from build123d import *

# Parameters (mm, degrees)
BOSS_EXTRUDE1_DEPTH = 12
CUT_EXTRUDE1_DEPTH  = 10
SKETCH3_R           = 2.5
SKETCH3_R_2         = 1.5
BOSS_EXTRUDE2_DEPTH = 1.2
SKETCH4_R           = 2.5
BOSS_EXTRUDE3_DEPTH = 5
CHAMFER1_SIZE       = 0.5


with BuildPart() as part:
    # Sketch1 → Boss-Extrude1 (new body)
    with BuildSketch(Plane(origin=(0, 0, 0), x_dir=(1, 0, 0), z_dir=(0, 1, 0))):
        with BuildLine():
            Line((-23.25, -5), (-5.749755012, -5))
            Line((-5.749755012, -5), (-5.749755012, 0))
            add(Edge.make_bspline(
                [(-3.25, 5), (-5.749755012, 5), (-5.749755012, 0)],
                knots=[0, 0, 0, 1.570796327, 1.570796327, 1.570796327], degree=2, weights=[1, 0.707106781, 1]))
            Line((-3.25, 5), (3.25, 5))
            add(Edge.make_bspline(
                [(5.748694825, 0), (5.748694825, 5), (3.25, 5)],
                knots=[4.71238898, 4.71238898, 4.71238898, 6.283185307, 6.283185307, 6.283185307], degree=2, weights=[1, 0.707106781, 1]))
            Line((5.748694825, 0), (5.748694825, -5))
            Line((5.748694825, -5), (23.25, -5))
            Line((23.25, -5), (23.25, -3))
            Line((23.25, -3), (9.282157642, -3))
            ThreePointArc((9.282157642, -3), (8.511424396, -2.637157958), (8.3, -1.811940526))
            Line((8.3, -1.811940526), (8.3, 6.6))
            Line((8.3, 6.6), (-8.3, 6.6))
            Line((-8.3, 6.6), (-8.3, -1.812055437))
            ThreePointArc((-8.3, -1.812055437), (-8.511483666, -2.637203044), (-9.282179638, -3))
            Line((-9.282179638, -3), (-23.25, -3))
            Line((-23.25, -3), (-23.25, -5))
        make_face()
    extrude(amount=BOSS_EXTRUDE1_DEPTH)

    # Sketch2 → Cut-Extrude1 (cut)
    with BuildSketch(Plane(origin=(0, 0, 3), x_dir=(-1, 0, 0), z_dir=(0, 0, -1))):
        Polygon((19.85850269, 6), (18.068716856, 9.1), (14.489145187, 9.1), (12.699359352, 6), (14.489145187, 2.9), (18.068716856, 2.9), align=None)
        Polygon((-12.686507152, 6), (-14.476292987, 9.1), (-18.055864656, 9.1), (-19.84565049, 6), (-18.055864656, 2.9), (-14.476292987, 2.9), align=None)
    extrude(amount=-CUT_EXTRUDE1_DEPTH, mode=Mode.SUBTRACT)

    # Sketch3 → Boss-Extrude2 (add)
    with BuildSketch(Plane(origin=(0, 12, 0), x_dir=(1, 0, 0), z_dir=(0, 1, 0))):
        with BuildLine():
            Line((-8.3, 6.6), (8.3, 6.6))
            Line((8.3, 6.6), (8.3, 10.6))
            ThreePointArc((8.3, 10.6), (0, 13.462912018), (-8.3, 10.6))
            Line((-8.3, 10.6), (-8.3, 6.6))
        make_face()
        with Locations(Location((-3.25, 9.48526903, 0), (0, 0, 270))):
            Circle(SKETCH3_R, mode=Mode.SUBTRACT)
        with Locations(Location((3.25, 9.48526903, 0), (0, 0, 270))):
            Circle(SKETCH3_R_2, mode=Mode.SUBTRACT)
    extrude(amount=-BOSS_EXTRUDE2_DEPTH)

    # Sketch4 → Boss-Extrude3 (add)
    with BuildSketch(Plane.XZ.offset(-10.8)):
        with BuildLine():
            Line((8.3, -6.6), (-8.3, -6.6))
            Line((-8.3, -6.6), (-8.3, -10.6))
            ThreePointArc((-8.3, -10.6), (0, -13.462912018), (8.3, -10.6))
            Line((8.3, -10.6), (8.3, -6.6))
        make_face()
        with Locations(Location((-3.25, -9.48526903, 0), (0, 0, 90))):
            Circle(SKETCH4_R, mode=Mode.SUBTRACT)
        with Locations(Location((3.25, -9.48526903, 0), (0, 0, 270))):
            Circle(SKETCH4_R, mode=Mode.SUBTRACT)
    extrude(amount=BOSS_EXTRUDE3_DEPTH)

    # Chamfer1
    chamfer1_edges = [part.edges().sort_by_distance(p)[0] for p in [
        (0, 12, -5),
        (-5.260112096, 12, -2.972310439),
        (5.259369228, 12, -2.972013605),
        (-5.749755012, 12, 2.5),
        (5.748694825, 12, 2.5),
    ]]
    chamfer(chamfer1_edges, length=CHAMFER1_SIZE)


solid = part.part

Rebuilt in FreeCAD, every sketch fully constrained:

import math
import FreeCAD as App
import Part
import Sketcher
from FreeCAD import Vector
Q = App.Units.Quantity


def edges_at(feature, points):
    """Names of the edges that pass closest to the given points."""
    edges = feature.Shape.Edges
    near = lambda p: min(range(len(edges)), key=lambda i: edges[i].distToShape(Part.Vertex(*p))[0])
    return sorted({f"Edge{near(p) + 1}" for p in points})

doc = App.newDocument("Part")
body = doc.addObject("PartDesign::Body", "Body")

# Sketch on XZ plane
sketch1 = body.newObject("Sketcher::SketchObject", "Sketch")
sketch1.AttachmentSupport = (doc.getObject("XZ_Plane"), [""])
sketch1.MapMode = "FlatFace"
sketch1.addGeometry(Part.LineSegment(Vector(-23.25, 5, 0), Vector(-5.749755, 5, 0)), False)
sketch1.addGeometry(Part.LineSegment(Vector(-5.749755, 5, 0), Vector(-5.749755, 0, 0)), False)
sketch1.addGeometry(Part.BSplineCurve([Vector(-3.25, -5, 0), Vector(-5.749755, -5, 0), Vector(-5.749755, 0, 0)], [3, 3], [0, 1.570796327], False, 2, [1, 0.707106781, 1], False), False)
sketch1.addGeometry(Part.LineSegment(Vector(-3.25, -5, 0), Vector(3.25, -5, 0)), False)
sketch1.addGeometry(Part.BSplineCurve([Vector(5.748695, 0, 0), Vector(5.748695, -5, 0), Vector(3.25, -5, 0)], [3, 3], [4.71238898, 6.283185307], False, 2, [1, 0.707106781, 1], False), False)
sketch1.addGeometry(Part.LineSegment(Vector(5.748695, 0, 0), Vector(5.748695, 5, 0)), False)
sketch1.addGeometry(Part.LineSegment(Vector(5.748695, 5, 0), Vector(23.25, 5, 0)), False)
sketch1.addGeometry(Part.LineSegment(Vector(23.25, 5, 0), Vector(23.25, 3, 0)), False)
sketch1.addGeometry(Part.LineSegment(Vector(23.25, 3, 0), Vector(9.282158, 3, 0)), False)
sketch1.addGeometry(Part.ArcOfCircle(Part.Circle(Vector(9.282158, 2, 0), Vector(0, 0, 1), 1), math.radians(90), math.radians(190.839559)), False)
sketch1.addGeometry(Part.LineSegment(Vector(8.3, 1.811941, 0), Vector(8.3, -6.6, 0)), False)
sketch1.addGeometry(Part.LineSegment(Vector(8.3, -6.6, 0), Vector(-8.3, -6.6, 0)), False)
sketch1.addGeometry(Part.LineSegment(Vector(-8.3, -6.6, 0), Vector(-8.3, 1.812055, 0)), False)
sketch1.addGeometry(Part.ArcOfCircle(Part.Circle(Vector(-9.28218, 2, 0), Vector(0, 0, 1), 1), math.radians(-10.832855), math.radians(90)), False)
sketch1.addGeometry(Part.LineSegment(Vector(-9.28218, 3, 0), Vector(-23.25, 3, 0)), False)
sketch1.addGeometry(Part.LineSegment(Vector(-23.25, 3, 0), Vector(-23.25, 5, 0)), False)
sketch1.addConstraint(Sketcher.Constraint("Block", 2))
sketch1.addConstraint(Sketcher.Constraint("Block", 4))
sketch1.addConstraint(Sketcher.Constraint("Coincident", 0, 2, 1, 1))
sketch1.addConstraint(Sketcher.Constraint("Coincident", 1, 2, 2, 2))
sketch1.addConstraint(Sketcher.Constraint("Coincident", 2, 1, 3, 1))
sketch1.addConstraint(Sketcher.Constraint("Coincident", 3, 2, 4, 2))
sketch1.addConstraint(Sketcher.Constraint("Coincident", 4, 1, 5, 1))
sketch1.addConstraint(Sketcher.Constraint("Coincident", 5, 2, 6, 1))
sketch1.addConstraint(Sketcher.Constraint("Coincident", 6, 2, 7, 1))
sketch1.addConstraint(Sketcher.Constraint("Coincident", 7, 2, 8, 1))
sketch1.addConstraint(Sketcher.Constraint("Tangent", 8, 2, 9, 1))
sketch1.addConstraint(Sketcher.Constraint("Coincident", 9, 2, 10, 1))
sketch1.addConstraint(Sketcher.Constraint("Coincident", 10, 2, 11, 1))
sketch1.addConstraint(Sketcher.Constraint("Coincident", 11, 2, 12, 1))
sketch1.addConstraint(Sketcher.Constraint("Coincident", 12, 2, 13, 1))
sketch1.addConstraint(Sketcher.Constraint("Tangent", 13, 2, 14, 1))
sketch1.addConstraint(Sketcher.Constraint("Coincident", 14, 2, 15, 1))
sketch1.addConstraint(Sketcher.Constraint("Coincident", 15, 2, 0, 1))
sketch1.addConstraint(Sketcher.Constraint("Horizontal", 0))
sketch1.addConstraint(Sketcher.Constraint("Vertical", 1))
sketch1.addConstraint(Sketcher.Constraint("Vertical", 5))
sketch1.addConstraint(Sketcher.Constraint("Horizontal", 6))
sketch1.addConstraint(Sketcher.Constraint("Vertical", 7))
sketch1.addConstraint(Sketcher.Constraint("Horizontal", 8))
sketch1.addConstraint(Sketcher.Constraint("Vertical", 10))
sketch1.addConstraint(Sketcher.Constraint("Horizontal", 11))
sketch1.addConstraint(Sketcher.Constraint("Vertical", 12))
sketch1.addConstraint(Sketcher.Constraint("Horizontal", 14))
sketch1.addConstraint(Sketcher.Constraint("Vertical", 15))
sketch1.addConstraint(Sketcher.Constraint("Equal", 9, 13))
sketch1.addConstraint(Sketcher.Constraint("Symmetric", 7, 2, 14, 2, -2))
sketch1.addConstraint(Sketcher.Constraint("Horizontal", 0, 2, 5, 2))
sketch1.addConstraint(Sketcher.Constraint("Radius", 9, 1.0))
sketch1.addConstraint(Sketcher.Constraint("DistanceY", 1, 2, 1, 1, 5.0))
sketch1.addConstraint(Sketcher.Constraint("DistanceY", 7, 2, 7, 1, 2.0))
sketch1.addConstraint(Sketcher.Constraint("DistanceX", 11, 2, 11, 1, 16.6))
sketch1.addConstraint(Sketcher.Constraint("DistanceX", 3, 2, 6, 2, 20.0))
sketch1.addConstraint(Sketcher.Constraint("DistanceX", -1, 1, 9, 2, 8.3))
sketch1.addConstraint(Sketcher.Constraint("DistanceY", 10, 2, -1, 1, 6.6))
sketch1.addConstraint(Sketcher.Constraint("DistanceX", 14, 2, 14, 1, 13.96782))
sketch1.addConstraint(Sketcher.Constraint("DistanceY", 10, 2, 10, 1, 8.411941))
pad1 = body.newObject("PartDesign::Pad", "Pad")
pad1.Profile = sketch1
pad1.Length = 12
pad1.Reversed = True

# Sketch on XY plane
sketch2 = body.newObject("Sketcher::SketchObject", "Sketch001")
sketch2.AttachmentSupport = (doc.getObject("XY_Plane"), [""])
sketch2.MapMode = "FlatFace"
sketch2.AttachmentOffset = App.Placement(Vector(0, 0, 3), App.Rotation())
sketch2.addGeometry(Part.LineSegment(Vector(-19.9, 6, 0), Vector(-18.1, 9.1, 0)), False)
sketch2.addGeometry(Part.LineSegment(Vector(-18.1, 9.1, 0), Vector(-14.5, 9.1, 0)), False)
sketch2.addGeometry(Part.LineSegment(Vector(-14.5, 9.1, 0), Vector(-12.7, 6, 0)), False)
sketch2.addGeometry(Part.LineSegment(Vector(-12.7, 6, 0), Vector(-14.5, 2.9, 0)), False)
sketch2.addGeometry(Part.LineSegment(Vector(-14.5, 2.9, 0), Vector(-18.1, 2.9, 0)), False)
sketch2.addGeometry(Part.LineSegment(Vector(-18.1, 2.9, 0), Vector(-19.9, 6, 0)), False)
sketch2.addGeometry(Part.LineSegment(Vector(12.7, 6, 0), Vector(14.5, 9.1, 0)), False)
sketch2.addGeometry(Part.LineSegment(Vector(14.5, 9.1, 0), Vector(18.1, 9.1, 0)), False)
sketch2.addGeometry(Part.LineSegment(Vector(18.1, 9.1, 0), Vector(19.8, 6, 0)), False)
sketch2.addGeometry(Part.LineSegment(Vector(19.8, 6, 0), Vector(18.1, 2.9, 0)), False)
sketch2.addGeometry(Part.LineSegment(Vector(18.1, 2.9, 0), Vector(14.5, 2.9, 0)), False)
sketch2.addGeometry(Part.LineSegment(Vector(14.5, 2.9, 0), Vector(12.7, 6, 0)), False)
sketch2.addConstraint(Sketcher.Constraint("Coincident", 0, 2, 1, 1))
sketch2.addConstraint(Sketcher.Constraint("Coincident", 1, 2, 2, 1))
sketch2.addConstraint(Sketcher.Constraint("Coincident", 2, 2, 3, 1))
sketch2.addConstraint(Sketcher.Constraint("Coincident", 3, 2, 4, 1))
sketch2.addConstraint(Sketcher.Constraint("Coincident", 4, 2, 5, 1))
sketch2.addConstraint(Sketcher.Constraint("Coincident", 5, 2, 0, 1))
sketch2.addConstraint(Sketcher.Constraint("Coincident", 6, 2, 7, 1))
sketch2.addConstraint(Sketcher.Constraint("Coincident", 7, 2, 8, 1))
sketch2.addConstraint(Sketcher.Constraint("Coincident", 8, 2, 9, 1))
sketch2.addConstraint(Sketcher.Constraint("Coincident", 9, 2, 10, 1))
sketch2.addConstraint(Sketcher.Constraint("Coincident", 10, 2, 11, 1))
sketch2.addConstraint(Sketcher.Constraint("Coincident", 11, 2, 6, 1))
sketch2.addConstraint(Sketcher.Constraint("Horizontal", 1))
sketch2.addConstraint(Sketcher.Constraint("Horizontal", 4))
sketch2.addConstraint(Sketcher.Constraint("Horizontal", 7))
sketch2.addConstraint(Sketcher.Constraint("Horizontal", 10))
sketch2.addConstraint(Sketcher.Constraint("Parallel", 0, 3))
sketch2.addConstraint(Sketcher.Constraint("Parallel", 2, 5))
sketch2.addConstraint(Sketcher.Constraint("Parallel", 3, 6))
sketch2.addConstraint(Sketcher.Constraint("Parallel", 5, 8))
sketch2.addConstraint(Sketcher.Constraint("Parallel", 6, 9))
sketch2.addConstraint(Sketcher.Constraint("Parallel", 8, 11))
sketch2.addConstraint(Sketcher.Constraint("Horizontal", 2, 2, 5, 2))
sketch2.addConstraint(Sketcher.Constraint("Horizontal", 1, 2, 6, 2))
sketch2.addConstraint(Sketcher.Constraint("Horizontal", 5, 2, 8, 2))
sketch2.addConstraint(Sketcher.Constraint("Horizontal", 4, 2, 9, 2))
sketch2.addConstraint(Sketcher.Constraint("Horizontal", 8, 2, 11, 2))
sketch2.addConstraint(Sketcher.Constraint("Vertical", 1, 2, 3, 2))
sketch2.addConstraint(Sketcher.Constraint("Vertical", 0, 2, 4, 2))
sketch2.addConstraint(Sketcher.Constraint("Equal", 4, 7))
sketch2.addConstraint(Sketcher.Constraint("Angle", 0, Q("60 deg")))
sketch2.addConstraint(Sketcher.Constraint("DistanceY", -1, 1, 2, 2, 6.0))
sketch2.addConstraint(Sketcher.Constraint("DistanceY", -1, 1, 0, 2, 9.1))
sketch2.addConstraint(Sketcher.Constraint("DistanceX", 1, 1, 1, 2, 3.579572))
sketch2.addConstraint(Sketcher.Constraint("DistanceX", 2, 2, -1, 1, 12.699359))
sketch2.addConstraint(Sketcher.Constraint("DistanceX", -1, 1, 8, 2, 19.84565))
pocket1 = body.newObject("PartDesign::Pocket", "Pocket")
pocket1.Profile = sketch2
pocket1.Length = 10
pocket1.Reversed = True

# Sketch on XZ plane
sketch3 = body.newObject("Sketcher::SketchObject", "Sketch002")
sketch3.AttachmentSupport = (doc.getObject("XZ_Plane"), [""])
sketch3.MapMode = "FlatFace"
sketch3.AttachmentOffset = App.Placement(Vector(0, 0, -12), App.Rotation())
sketch3.addGeometry(Part.LineSegment(Vector(-8.3, -6.6, 0), Vector(8.3, -6.6, 0)), False)
sketch3.addGeometry(Part.LineSegment(Vector(8.3, -6.6, 0), Vector(8.3, -10.6, 0)), False)
sketch3.addGeometry(Part.ArcOfCircle(Part.Circle(Vector(0, 0, 0), Vector(0, 0, 1), 13.5), math.radians(-128), math.radians(-52)), False)
sketch3.addGeometry(Part.LineSegment(Vector(-8.3, -10.6, 0), Vector(-8.3, -6.6, 0)), False)
sketch3.addGeometry(Part.Circle(Vector(-3.2, -9.5, 0), Vector(0, 0, 1), 2.5), False)
sketch3.addGeometry(Part.Circle(Vector(3.2, -9.5, 0), Vector(0, 0, 1), 1.5), False)
sketch3.addConstraint(Sketcher.Constraint("Coincident", 0, 2, 1, 1))
sketch3.addConstraint(Sketcher.Constraint("Coincident", 1, 2, 2, 2))
sketch3.addConstraint(Sketcher.Constraint("Coincident", 2, 1, 3, 1))
sketch3.addConstraint(Sketcher.Constraint("Coincident", 3, 2, 0, 1))
sketch3.addConstraint(Sketcher.Constraint("Horizontal", 0))
sketch3.addConstraint(Sketcher.Constraint("Vertical", 1))
sketch3.addConstraint(Sketcher.Constraint("Vertical", 3))
sketch3.addConstraint(Sketcher.Constraint("Coincident", 2, 3, -1, 1))
sketch3.addConstraint(Sketcher.Constraint("Symmetric", 4, 3, 5, 3, -2))
sketch3.addConstraint(Sketcher.Constraint("Horizontal", 1, 2, 2, 1))
sketch3.addConstraint(Sketcher.Constraint("Diameter", 4, 5.0))
sketch3.addConstraint(Sketcher.Constraint("Diameter", 5, 3.0))
sketch3.addConstraint(Sketcher.Constraint("DistanceY", 1, 2, 1, 1, 4.0))
sketch3.addConstraint(Sketcher.Constraint("DistanceX", 0, 1, 0, 2, 16.6))
sketch3.addConstraint(Sketcher.Constraint("DistanceY", 0, 2, -1, 1, 6.6))
sketch3.addConstraint(Sketcher.Constraint("DistanceX", 4, 3, 5, 3, 6.5))
sketch3.addConstraint(Sketcher.Constraint("DistanceY", 4, 3, -1, 1, 9.485269))
pad2 = body.newObject("PartDesign::Pad", "Pad001")
pad2.Profile = sketch3
pad2.Length = 1.2

# Sketch on XZ plane
sketch4 = body.newObject("Sketcher::SketchObject", "Sketch003")
sketch4.AttachmentSupport = (doc.getObject("XZ_Plane"), [""])
sketch4.MapMode = "FlatFace"
sketch4.AttachmentOffset = App.Placement(Vector(0, 0, -10.8), App.Rotation())
sketch4.addGeometry(Part.LineSegment(Vector(8.3, -6.6, 0), Vector(-8.3, -6.6, 0)), False)
sketch4.addGeometry(Part.LineSegment(Vector(-8.3, -6.6, 0), Vector(-8.3, -10.6, 0)), False)
sketch4.addGeometry(Part.ArcOfCircle(Part.Circle(Vector(0, 0, 0), Vector(0, 0, 1), 13.5), math.radians(-128), math.radians(-52)), False)
sketch4.addGeometry(Part.LineSegment(Vector(8.3, -10.6, 0), Vector(8.3, -6.6, 0)), False)
sketch4.addGeometry(Part.Circle(Vector(-3.2, -9.5, 0), Vector(0, 0, 1), 2.5), False)
sketch4.addGeometry(Part.Circle(Vector(3.2, -9.5, 0), Vector(0, 0, 1), 2.5), False)
sketch4.addConstraint(Sketcher.Constraint("Coincident", 0, 2, 1, 1))
sketch4.addConstraint(Sketcher.Constraint("Coincident", 1, 2, 2, 1))
sketch4.addConstraint(Sketcher.Constraint("Coincident", 2, 2, 3, 1))
sketch4.addConstraint(Sketcher.Constraint("Coincident", 3, 2, 0, 1))
sketch4.addConstraint(Sketcher.Constraint("Horizontal", 0))
sketch4.addConstraint(Sketcher.Constraint("Vertical", 1))
sketch4.addConstraint(Sketcher.Constraint("Vertical", 3))
sketch4.addConstraint(Sketcher.Constraint("Coincident", 2, 3, -1, 1))
sketch4.addConstraint(Sketcher.Constraint("Equal", 4, 5))
sketch4.addConstraint(Sketcher.Constraint("Symmetric", 4, 3, 5, 3, -2))
sketch4.addConstraint(Sketcher.Constraint("Horizontal", 1, 2, 2, 2))
sketch4.addConstraint(Sketcher.Constraint("Diameter", 4, 5.0))
sketch4.addConstraint(Sketcher.Constraint("DistanceY", 1, 2, 1, 1, 4.0))
sketch4.addConstraint(Sketcher.Constraint("DistanceX", 0, 2, 0, 1, 16.6))
sketch4.addConstraint(Sketcher.Constraint("DistanceY", 0, 2, -1, 1, 6.6))
sketch4.addConstraint(Sketcher.Constraint("DistanceX", 4, 3, 5, 3, 6.5))
sketch4.addConstraint(Sketcher.Constraint("DistanceY", 4, 3, -1, 1, 9.485269))
pad3 = body.newObject("PartDesign::Pad", "Pad002")
pad3.Profile = sketch4
pad3.Length = 5
doc.recompute()

chamfer = body.newObject("PartDesign::Chamfer", "Chamfer")
chamfer.Base = (pad3, edges_at(pad3, [
    (0, 12, -5),
    (-5.26, 12, -2.972),
    (5.259, 12, -2.972),
    (-5.75, 12, 2.5),
    (5.749, 12, 2.5),
]))
chamfer.Size = 0.5

doc.recompute()
